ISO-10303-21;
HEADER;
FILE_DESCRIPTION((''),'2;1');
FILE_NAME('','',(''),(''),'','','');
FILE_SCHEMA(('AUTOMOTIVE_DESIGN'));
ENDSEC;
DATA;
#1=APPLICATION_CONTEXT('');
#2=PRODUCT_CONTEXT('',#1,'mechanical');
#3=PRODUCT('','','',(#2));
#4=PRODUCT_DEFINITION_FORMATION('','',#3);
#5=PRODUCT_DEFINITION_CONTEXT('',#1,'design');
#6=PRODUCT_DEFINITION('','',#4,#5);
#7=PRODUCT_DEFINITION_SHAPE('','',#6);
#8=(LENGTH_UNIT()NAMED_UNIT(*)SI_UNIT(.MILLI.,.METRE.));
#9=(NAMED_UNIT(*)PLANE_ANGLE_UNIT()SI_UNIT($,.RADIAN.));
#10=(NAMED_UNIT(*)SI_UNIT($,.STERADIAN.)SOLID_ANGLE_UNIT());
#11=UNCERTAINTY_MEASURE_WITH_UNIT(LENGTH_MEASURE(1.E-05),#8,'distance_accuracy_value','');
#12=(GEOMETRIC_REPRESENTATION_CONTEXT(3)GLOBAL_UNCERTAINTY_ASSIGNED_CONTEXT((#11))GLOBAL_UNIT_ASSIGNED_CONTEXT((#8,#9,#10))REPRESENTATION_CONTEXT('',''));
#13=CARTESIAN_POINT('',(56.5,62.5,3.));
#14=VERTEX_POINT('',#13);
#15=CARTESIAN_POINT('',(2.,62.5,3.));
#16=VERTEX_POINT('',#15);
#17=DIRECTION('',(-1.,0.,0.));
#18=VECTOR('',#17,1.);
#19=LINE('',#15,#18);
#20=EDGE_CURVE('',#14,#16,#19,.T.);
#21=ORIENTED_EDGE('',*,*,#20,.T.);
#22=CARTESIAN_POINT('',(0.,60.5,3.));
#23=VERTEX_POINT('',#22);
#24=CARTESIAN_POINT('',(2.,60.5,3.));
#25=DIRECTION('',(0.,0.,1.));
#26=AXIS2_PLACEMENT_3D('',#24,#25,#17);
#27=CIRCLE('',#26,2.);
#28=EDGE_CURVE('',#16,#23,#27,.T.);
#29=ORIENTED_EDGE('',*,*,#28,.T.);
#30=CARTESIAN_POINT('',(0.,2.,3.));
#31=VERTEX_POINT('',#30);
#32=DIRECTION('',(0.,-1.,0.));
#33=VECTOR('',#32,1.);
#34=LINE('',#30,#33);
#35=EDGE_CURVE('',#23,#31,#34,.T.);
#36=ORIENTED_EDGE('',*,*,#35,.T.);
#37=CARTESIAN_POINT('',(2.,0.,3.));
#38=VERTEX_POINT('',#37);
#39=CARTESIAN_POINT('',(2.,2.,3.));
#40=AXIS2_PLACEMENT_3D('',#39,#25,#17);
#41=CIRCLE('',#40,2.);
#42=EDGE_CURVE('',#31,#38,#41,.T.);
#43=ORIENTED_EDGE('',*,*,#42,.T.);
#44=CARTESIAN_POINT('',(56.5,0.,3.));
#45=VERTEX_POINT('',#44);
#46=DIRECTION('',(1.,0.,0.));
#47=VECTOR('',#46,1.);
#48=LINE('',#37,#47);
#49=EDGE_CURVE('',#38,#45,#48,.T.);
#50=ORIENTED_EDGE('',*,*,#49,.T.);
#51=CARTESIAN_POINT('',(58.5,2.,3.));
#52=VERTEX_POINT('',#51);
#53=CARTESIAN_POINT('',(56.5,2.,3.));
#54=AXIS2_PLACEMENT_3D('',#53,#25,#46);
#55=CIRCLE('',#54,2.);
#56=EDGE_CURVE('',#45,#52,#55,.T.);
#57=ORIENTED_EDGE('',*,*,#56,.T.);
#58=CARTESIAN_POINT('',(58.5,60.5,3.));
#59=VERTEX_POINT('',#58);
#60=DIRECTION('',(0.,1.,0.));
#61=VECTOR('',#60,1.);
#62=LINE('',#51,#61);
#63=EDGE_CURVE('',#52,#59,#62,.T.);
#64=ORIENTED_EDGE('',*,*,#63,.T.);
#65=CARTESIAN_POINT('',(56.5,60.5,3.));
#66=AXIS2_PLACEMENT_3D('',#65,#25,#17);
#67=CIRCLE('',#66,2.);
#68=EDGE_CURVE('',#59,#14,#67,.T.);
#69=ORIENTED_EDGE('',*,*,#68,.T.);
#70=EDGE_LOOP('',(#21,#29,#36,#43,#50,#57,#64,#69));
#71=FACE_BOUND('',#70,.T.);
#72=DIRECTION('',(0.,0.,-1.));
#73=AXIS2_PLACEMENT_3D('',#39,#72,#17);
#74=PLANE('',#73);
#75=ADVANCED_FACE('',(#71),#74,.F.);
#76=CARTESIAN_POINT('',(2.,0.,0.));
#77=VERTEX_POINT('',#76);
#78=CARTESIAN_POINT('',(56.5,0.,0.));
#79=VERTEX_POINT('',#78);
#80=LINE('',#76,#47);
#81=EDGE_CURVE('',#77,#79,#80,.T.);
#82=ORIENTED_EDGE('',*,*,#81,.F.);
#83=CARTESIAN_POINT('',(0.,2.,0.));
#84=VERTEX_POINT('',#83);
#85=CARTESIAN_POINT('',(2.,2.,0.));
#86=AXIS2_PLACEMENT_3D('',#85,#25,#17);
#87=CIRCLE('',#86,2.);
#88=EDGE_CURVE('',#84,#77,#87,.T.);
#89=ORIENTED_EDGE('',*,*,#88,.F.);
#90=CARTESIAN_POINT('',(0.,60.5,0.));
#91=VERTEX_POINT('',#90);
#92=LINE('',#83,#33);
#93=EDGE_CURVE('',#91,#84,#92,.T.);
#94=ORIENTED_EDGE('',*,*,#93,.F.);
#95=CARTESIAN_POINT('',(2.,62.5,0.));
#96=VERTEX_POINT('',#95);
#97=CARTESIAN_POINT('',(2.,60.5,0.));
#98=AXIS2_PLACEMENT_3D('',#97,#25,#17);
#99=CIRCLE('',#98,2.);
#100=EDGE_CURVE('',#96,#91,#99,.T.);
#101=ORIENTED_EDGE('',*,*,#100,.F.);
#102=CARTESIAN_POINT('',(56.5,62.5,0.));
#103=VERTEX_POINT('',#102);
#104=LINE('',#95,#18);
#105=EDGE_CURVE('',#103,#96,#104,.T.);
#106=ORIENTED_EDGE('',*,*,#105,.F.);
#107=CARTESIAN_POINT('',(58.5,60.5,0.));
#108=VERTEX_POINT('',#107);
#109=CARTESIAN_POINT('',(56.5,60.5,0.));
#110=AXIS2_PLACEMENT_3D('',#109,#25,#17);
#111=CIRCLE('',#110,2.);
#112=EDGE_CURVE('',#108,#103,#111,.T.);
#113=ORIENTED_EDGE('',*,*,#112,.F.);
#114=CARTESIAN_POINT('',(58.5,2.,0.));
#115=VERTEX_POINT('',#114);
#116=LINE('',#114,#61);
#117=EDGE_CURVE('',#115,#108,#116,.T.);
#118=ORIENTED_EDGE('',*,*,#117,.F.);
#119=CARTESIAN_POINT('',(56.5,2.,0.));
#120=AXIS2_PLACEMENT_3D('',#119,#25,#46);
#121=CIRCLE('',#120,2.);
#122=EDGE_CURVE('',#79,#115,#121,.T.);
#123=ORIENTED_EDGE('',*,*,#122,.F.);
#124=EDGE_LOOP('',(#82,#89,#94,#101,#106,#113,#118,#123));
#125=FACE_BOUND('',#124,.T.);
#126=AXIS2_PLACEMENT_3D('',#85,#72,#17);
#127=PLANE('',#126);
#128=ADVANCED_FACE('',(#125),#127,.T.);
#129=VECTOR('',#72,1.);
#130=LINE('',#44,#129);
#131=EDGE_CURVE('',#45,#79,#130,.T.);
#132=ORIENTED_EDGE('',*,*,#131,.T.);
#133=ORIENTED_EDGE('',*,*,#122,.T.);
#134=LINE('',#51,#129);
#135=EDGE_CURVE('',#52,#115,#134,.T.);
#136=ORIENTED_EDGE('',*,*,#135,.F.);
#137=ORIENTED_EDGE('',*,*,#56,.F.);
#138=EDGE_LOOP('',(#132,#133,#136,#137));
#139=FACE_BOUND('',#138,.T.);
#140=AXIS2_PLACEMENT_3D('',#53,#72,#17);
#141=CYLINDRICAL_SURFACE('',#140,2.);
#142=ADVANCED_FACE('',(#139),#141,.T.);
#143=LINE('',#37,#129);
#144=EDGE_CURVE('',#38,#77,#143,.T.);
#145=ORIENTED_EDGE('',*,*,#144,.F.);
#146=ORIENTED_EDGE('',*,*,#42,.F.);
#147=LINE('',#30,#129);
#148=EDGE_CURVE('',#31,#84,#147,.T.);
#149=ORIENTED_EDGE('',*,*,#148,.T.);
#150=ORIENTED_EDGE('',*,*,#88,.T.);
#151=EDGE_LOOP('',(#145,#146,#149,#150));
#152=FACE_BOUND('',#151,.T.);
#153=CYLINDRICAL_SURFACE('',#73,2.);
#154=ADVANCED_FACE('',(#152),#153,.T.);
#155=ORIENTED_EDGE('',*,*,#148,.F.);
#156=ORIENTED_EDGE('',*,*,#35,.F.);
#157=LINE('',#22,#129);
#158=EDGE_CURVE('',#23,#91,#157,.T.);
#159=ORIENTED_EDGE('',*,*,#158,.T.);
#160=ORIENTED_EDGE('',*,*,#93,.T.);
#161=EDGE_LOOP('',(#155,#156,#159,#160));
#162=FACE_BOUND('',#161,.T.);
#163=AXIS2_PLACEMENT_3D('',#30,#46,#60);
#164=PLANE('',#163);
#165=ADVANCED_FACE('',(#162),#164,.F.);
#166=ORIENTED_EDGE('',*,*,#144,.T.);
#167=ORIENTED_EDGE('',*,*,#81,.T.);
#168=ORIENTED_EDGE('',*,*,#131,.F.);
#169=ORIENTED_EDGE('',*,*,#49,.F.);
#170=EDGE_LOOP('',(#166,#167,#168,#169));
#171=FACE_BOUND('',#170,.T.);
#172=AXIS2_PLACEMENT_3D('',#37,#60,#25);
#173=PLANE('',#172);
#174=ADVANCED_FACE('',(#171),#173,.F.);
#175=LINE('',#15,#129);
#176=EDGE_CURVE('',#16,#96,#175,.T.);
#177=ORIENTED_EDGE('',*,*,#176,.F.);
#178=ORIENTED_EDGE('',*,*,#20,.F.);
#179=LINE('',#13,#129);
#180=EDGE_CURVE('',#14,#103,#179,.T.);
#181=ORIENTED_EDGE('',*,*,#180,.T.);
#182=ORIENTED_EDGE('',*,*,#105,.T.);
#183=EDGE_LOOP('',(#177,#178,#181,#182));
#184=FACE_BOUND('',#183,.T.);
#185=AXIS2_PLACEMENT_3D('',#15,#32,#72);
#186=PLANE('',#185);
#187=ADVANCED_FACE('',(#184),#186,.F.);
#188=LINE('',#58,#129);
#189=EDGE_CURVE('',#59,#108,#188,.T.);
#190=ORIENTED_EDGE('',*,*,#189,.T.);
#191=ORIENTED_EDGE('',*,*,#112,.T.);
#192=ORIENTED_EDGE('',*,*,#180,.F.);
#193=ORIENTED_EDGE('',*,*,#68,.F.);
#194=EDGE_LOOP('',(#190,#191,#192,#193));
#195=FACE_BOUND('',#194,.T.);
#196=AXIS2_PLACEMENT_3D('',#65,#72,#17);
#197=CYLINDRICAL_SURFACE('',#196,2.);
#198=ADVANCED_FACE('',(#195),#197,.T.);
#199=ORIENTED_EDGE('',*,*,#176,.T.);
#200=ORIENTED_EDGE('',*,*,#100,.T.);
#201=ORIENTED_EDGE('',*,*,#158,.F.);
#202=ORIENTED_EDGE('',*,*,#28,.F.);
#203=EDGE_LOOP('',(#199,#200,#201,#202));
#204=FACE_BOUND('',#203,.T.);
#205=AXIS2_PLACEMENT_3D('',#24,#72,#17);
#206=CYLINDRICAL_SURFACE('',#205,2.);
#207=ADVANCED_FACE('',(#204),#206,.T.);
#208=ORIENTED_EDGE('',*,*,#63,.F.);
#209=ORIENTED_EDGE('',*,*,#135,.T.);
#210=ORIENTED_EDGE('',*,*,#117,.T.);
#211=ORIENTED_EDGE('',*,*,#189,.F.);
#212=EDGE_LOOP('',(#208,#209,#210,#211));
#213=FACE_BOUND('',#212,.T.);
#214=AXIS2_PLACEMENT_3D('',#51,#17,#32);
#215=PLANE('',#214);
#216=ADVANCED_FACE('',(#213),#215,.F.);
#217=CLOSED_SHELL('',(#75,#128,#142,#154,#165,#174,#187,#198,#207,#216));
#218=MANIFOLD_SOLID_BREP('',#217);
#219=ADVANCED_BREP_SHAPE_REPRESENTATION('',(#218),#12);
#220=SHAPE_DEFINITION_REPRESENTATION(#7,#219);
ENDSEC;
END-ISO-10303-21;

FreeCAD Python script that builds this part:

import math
import FreeCAD as App
import Part
import Sketcher

V = App.Vector
Q = App.Units.Quantity

doc = App.newDocument("Part")
body = doc.addObject("PartDesign::Body", "Body")

sketch1 = doc.addObject("Sketcher::SketchObject", "Sketch")
body.addObject(sketch1)
sketch1.AttachmentSupport = (doc.XY_Plane, [""])
sketch1.MapMode = "FlatFace"
sketch1.addGeometry([
    Part.LineSegment(V(2, 0, 0), V(56.5, 0, 0)),
    Part.ArcOfCircle(Part.Circle(V(56.5, 2, 0), V(0, 0, 1), 2), math.radians(-90), math.radians(0)),
    Part.LineSegment(V(58.5, 2, 0), V(58.5, 60.5, 0)),
    Part.ArcOfCircle(Part.Circle(V(56.5, 60.5, 0), V(0, 0, 1), 2), math.radians(0), math.radians(90)),
    Part.LineSegment(V(56.5, 62.5, 0), V(2, 62.5, 0)),
    Part.ArcOfCircle(Part.Circle(V(2, 60.5, 0), V(0, 0, 1), 2), math.radians(90), math.radians(180)),
    Part.LineSegment(V(0, 60.5, 0), V(0, 2, 0)),
    Part.ArcOfCircle(Part.Circle(V(2, 2, 0), V(0, 0, 1), 2), math.radians(-180), math.radians(-90)),
], False)
sketch1.addConstraint([
    Sketcher.Constraint("Tangent", 0, 2, 1, 1),
    Sketcher.Constraint("Tangent", 1, 2, 2, 1),
    Sketcher.Constraint("Tangent", 2, 2, 3, 1),
    Sketcher.Constraint("Tangent", 3, 2, 4, 1),
    Sketcher.Constraint("Tangent", 4, 2, 5, 1),
    Sketcher.Constraint("Tangent", 5, 2, 6, 1),
    Sketcher.Constraint("Tangent", 6, 2, 7, 1),
    Sketcher.Constraint("Tangent", 7, 2, 0, 1),
    Sketcher.Constraint("Horizontal", 0),
    Sketcher.Constraint("Vertical", 2),
    Sketcher.Constraint("Horizontal", 4),
    Sketcher.Constraint("Vertical", 6),
    Sketcher.Constraint("Equal", 1, 3),
    Sketcher.Constraint("Equal", 3, 5),
    Sketcher.Constraint("Equal", 5, 7),
    Sketcher.Constraint("PointOnObject", 0, 2, -1),
    Sketcher.Constraint("PointOnObject", 5, 2, -2),
    Sketcher.Constraint("Radius", 1, Q("2 mm")),
    Sketcher.Constraint("DistanceX", 0, 1, 0, 2, Q("54.5 mm")),
    Sketcher.Constraint("DistanceY", 2, 1, 2, 2, Q("58.5 mm")),
])
pad1 = doc.addObject("PartDesign::Pad", "Pad")
body.addObject(pad1)
pad1.Profile = sketch1
pad1.Length = 3

doc.recompute()
